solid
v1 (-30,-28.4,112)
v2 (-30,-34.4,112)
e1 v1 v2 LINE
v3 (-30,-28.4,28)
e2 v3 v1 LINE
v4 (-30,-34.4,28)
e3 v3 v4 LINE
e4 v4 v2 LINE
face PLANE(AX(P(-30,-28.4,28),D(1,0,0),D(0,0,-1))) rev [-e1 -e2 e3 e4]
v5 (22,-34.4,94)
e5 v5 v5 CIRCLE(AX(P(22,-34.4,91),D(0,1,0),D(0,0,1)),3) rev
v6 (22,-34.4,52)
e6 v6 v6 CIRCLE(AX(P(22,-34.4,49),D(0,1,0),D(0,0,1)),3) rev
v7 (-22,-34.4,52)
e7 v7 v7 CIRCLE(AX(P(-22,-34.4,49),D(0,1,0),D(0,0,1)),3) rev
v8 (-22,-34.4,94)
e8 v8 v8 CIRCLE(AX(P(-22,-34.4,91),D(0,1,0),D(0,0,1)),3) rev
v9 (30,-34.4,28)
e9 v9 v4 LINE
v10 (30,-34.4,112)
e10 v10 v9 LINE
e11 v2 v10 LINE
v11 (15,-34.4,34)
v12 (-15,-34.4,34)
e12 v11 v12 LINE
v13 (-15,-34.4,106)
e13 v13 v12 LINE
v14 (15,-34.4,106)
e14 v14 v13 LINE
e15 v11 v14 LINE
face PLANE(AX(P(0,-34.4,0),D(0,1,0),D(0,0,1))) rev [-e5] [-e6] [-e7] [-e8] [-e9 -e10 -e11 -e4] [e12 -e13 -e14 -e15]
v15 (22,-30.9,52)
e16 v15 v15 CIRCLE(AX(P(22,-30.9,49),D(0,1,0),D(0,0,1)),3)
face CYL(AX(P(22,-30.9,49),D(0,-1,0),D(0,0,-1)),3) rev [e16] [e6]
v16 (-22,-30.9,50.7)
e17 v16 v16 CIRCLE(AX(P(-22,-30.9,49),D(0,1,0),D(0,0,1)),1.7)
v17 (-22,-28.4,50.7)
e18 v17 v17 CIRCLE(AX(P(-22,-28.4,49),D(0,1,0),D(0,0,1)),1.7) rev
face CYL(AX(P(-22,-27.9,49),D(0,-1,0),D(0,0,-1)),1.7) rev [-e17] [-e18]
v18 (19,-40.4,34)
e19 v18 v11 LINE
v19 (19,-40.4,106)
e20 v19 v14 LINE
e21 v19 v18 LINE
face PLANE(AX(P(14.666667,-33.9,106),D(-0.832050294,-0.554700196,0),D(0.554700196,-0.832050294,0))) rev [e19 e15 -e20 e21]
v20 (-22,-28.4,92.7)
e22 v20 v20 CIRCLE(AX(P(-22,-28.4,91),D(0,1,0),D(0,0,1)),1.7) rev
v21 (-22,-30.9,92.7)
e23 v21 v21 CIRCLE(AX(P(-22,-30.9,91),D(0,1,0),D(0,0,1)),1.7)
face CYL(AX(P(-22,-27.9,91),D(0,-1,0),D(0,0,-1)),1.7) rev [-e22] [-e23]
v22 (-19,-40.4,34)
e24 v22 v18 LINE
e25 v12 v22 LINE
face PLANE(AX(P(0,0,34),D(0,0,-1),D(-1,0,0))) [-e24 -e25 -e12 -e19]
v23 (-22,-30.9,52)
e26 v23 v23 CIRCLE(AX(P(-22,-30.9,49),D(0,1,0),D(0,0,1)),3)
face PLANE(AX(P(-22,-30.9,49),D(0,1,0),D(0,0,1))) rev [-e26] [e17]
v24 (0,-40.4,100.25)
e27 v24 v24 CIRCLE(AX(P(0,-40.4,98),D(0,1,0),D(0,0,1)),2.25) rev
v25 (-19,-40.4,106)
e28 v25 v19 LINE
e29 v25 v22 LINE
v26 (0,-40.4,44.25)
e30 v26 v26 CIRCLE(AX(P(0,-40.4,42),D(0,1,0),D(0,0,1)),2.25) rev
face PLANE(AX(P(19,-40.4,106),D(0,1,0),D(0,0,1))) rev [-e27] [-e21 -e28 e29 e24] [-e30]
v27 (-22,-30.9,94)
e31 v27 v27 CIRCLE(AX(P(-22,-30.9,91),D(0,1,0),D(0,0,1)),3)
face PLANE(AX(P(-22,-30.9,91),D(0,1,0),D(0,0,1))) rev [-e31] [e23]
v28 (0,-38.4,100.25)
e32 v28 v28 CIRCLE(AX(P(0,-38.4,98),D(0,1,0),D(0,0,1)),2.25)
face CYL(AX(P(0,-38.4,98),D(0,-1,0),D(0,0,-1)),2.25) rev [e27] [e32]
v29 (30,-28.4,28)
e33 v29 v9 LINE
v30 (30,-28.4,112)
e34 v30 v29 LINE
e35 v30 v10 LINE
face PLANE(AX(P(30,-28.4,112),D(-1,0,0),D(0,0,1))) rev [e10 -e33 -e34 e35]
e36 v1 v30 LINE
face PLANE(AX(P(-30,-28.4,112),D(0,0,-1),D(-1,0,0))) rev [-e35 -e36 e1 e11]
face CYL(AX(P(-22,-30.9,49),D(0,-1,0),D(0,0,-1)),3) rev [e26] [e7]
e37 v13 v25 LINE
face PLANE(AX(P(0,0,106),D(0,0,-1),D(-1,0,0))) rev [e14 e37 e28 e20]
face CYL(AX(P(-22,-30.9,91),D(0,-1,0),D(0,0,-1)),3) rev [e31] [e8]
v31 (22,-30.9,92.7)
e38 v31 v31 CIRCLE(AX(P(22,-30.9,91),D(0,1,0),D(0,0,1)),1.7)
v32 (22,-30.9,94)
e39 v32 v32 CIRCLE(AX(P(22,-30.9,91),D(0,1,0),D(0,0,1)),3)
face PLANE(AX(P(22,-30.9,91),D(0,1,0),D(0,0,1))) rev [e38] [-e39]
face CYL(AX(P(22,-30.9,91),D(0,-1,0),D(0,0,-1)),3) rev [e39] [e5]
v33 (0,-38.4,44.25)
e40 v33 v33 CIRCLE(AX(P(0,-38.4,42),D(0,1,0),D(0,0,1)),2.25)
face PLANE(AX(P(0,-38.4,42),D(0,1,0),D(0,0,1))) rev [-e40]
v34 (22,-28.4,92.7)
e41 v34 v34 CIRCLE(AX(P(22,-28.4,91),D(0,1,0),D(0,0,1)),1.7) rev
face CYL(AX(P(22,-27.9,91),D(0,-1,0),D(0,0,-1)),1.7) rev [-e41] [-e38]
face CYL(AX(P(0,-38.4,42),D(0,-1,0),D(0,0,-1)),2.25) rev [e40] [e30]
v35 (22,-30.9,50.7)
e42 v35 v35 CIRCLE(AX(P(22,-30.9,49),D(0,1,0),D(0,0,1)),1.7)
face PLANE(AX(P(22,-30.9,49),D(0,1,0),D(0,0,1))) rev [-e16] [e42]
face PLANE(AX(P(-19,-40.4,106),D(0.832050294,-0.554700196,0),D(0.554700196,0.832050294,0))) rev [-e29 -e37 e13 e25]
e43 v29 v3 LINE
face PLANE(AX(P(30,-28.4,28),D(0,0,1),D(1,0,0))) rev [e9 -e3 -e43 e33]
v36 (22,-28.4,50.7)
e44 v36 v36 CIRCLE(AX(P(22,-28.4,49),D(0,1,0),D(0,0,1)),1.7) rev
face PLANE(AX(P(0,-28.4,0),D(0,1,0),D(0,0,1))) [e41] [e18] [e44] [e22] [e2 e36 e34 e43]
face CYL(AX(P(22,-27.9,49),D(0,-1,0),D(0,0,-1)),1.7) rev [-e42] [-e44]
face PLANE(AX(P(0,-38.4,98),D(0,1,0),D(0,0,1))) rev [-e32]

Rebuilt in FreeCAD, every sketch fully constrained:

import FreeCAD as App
import Part
import Sketcher

doc = App.newDocument("Part")
body = doc.addObject("PartDesign::Body", "Body")

# Sketch on XZ plane
sketch1 = doc.addObject("Sketcher::SketchObject", "Sketch")
body.addObject(sketch1)
sketch1.AttachmentSupport = (doc.XZ_Plane, [""])
sketch1.MapMode = "FlatFace"
sketch1.AttachmentOffset = App.Placement(App.Vector(0, 0, 34.4), App.Rotation())
sketch1.addGeometry([
    Part.LineSegment(App.Vector(-30, 28, 0), App.Vector(-30, 112, 0)),
    Part.LineSegment(App.Vector(-30, 112, 0), App.Vector(30, 112, 0)),
    Part.LineSegment(App.Vector(30, 112, 0), App.Vector(30, 28, 0)),
    Part.LineSegment(App.Vector(30, 28, 0), App.Vector(-30, 28, 0)),
], False)
sketch1.addConstraint([
    Sketcher.Constraint("Coincident", 0, 2, 1, 1),
    Sketcher.Constraint("Coincident", 1, 2, 2, 1),
    Sketcher.Constraint("Coincident", 2, 2, 3, 1),
    Sketcher.Constraint("Coincident", 3, 2, 0, 1),
    Sketcher.Constraint("Vertical", 0),
    Sketcher.Constraint("Horizontal", 1),
    Sketcher.Constraint("Vertical", 2),
    Sketcher.Constraint("Horizontal", 3),
    Sketcher.Constraint("DistanceX", 1, 1, 1, 2, 60.0),
    Sketcher.Constraint("DistanceY", 0, 1, 0, 2, 84.0),
    Sketcher.Constraint("DistanceX", 0, 2, -1, 1, 30.0),
    Sketcher.Constraint("DistanceY", -1, 1, 0, 2, 112.0),
])
pad1 = doc.addObject("PartDesign::Pad", "Pad")
body.addObject(pad1)
pad1.Profile = sketch1
pad1.Length = 6
pad1.Reversed = True

# Sketch on XY plane
sketch2 = doc.addObject("Sketcher::SketchObject", "Sketch001")
body.addObject(sketch2)
sketch2.AttachmentSupport = (doc.XY_Plane, [""])
sketch2.MapMode = "FlatFace"
sketch2.AttachmentOffset = App.Placement(App.Vector(0, 0, 34), App.Rotation())
sketch2.addGeometry([
    Part.LineSegment(App.Vector(14.666667, -33.9, 0), App.Vector(-14.666667, -33.9, 0)),
    Part.LineSegment(App.Vector(-14.666667, -33.9, 0), App.Vector(-19, -40.4, 0)),
    Part.LineSegment(App.Vector(-19, -40.4, 0), App.Vector(19, -40.4, 0)),
    Part.LineSegment(App.Vector(19, -40.4, 0), App.Vector(14.666667, -33.9, 0)),
], False)
sketch2.addConstraint([
    Sketcher.Constraint("Coincident", 0, 2, 1, 1),
    Sketcher.Constraint("Coincident", 1, 2, 2, 1),
    Sketcher.Constraint("Coincident", 2, 2, 3, 1),
    Sketcher.Constraint("Coincident", 3, 2, 0, 1),
    Sketcher.Constraint("Horizontal", 0),
    Sketcher.Constraint("Horizontal", 2),
    Sketcher.Constraint("Equal", 1, 3),
    Sketcher.Constraint("DistanceX", 2, 1, 2, 2, 38.0),
    Sketcher.Constraint("DistanceX", 1, 2, -1, 1, 19.0),
    Sketcher.Constraint("DistanceY", 0, 2, -1, 1, 33.9),
    Sketcher.Constraint("DistanceY", 1, 2, -1, 1, 40.4),
    Sketcher.Constraint("DistanceX", 0, 2, 0, 1, 29.333333),
])
pad2 = doc.addObject("PartDesign::Pad", "Pad001")
body.addObject(pad2)
pad2.Profile = sketch2
pad2.Length = 72

# Sketch on XZ plane
sketch3 = doc.addObject("Sketcher::SketchObject", "Sketch002")
body.addObject(sketch3)
sketch3.AttachmentSupport = (doc.XZ_Plane, [""])
sketch3.MapMode = "FlatFace"
sketch3.AttachmentOffset = App.Placement(App.Vector(0, 0, 34.9), App.Rotation())
sketch3.addGeometry([
    Part.Circle(App.Vector(-22, 91, 0), App.Vector(0, 0, 1), 1.7),
    Part.Circle(App.Vector(-22, 49, 0), App.Vector(0, 0, 1), 1.7),
    Part.Circle(App.Vector(22, 91, 0), App.Vector(0, 0, 1), 1.7),
    Part.Circle(App.Vector(22, 49, 0), App.Vector(0, 0, 1), 1.7),
], False)
sketch3.addConstraint([
    Sketcher.Constraint("Equal", 0, 1),
    Sketcher.Constraint("Equal", 1, 2),
    Sketcher.Constraint("Equal", 2, 3),
    Sketcher.Constraint("Symmetric", 0, 3, 2, 3, -2),
    Sketcher.Constraint("Symmetric", 1, 3, 3, 3, -2),
    Sketcher.Constraint("Vertical", 0, 3, 1, 3),
    Sketcher.Constraint("Diameter", 0, 3.4),
    Sketcher.Constraint("DistanceX", 0, 3, -1, 1, 22.0),
    Sketcher.Constraint("DistanceY", -1, 1, 0, 3, 91.0),
    Sketcher.Constraint("DistanceY", -1, 1, 1, 3, 49.0),
])
pocket1 = doc.addObject("PartDesign::Pocket", "Pocket")
body.addObject(pocket1)
pocket1.Profile = sketch3
pocket1.Length = 7

# Sketch on XZ plane
sketch4 = doc.addObject("Sketcher::SketchObject", "Sketch003")
body.addObject(sketch4)
sketch4.AttachmentSupport = (doc.XZ_Plane, [""])
sketch4.MapMode = "FlatFace"
sketch4.AttachmentOffset = App.Placement(App.Vector(0, 0, 34.9), App.Rotation())
sketch4.addGeometry([
    Part.Circle(App.Vector(-22, 91, 0), App.Vector(0, 0, 1), 3),
    Part.Circle(App.Vector(-22, 49, 0), App.Vector(0, 0, 1), 3),
    Part.Circle(App.Vector(22, 91, 0), App.Vector(0, 0, 1), 3),
    Part.Circle(App.Vector(22, 49, 0), App.Vector(0, 0, 1), 3),
], False)
sketch4.addConstraint([
    Sketcher.Constraint("Equal", 0, 1),
    Sketcher.Constraint("Equal", 1, 2),
    Sketcher.Constraint("Equal", 2, 3),
    Sketcher.Constraint("Symmetric", 0, 3, 2, 3, -2),
    Sketcher.Constraint("Symmetric", 1, 3, 3, 3, -2),
    Sketcher.Constraint("Vertical", 0, 3, 1, 3),
    Sketcher.Constraint("Diameter", 0, 6.0),
    Sketcher.Constraint("DistanceX", 0, 3, -1, 1, 22.0),
    Sketcher.Constraint("DistanceY", -1, 1, 0, 3, 91.0),
    Sketcher.Constraint("DistanceY", -1, 1, 1, 3, 49.0),
])
pocket2 = doc.addObject("PartDesign::Pocket", "Pocket001")
body.addObject(pocket2)
pocket2.Profile = sketch4
pocket2.Length = 4

# Sketch on XZ plane
sketch5 = doc.addObject("Sketcher::SketchObject", "Sketch004")
body.addObject(sketch5)
sketch5.AttachmentSupport = (doc.XZ_Plane, [""])
sketch5.MapMode = "FlatFace"
sketch5.AttachmentOffset = App.Placement(App.Vector(0, 0, 40.9), App.Rotation())
sketch5.addGeometry([
    Part.Circle(App.Vector(0, 98, 0), App.Vector(0, 0, 1), 2.25),
    Part.Circle(App.Vector(0, 42, 0), App.Vector(0, 0, 1), 2.25),
], False)
sketch5.addConstraint([
    Sketcher.Constraint("Equal", 0, 1),
    Sketcher.Constraint("PointOnObject", 0, 3, -2),
    Sketcher.Constraint("PointOnObject", 1, 3, -2),
    Sketcher.Constraint("Diameter", 0, 4.5),
    Sketcher.Constraint("DistanceY", -1, 1, 0, 3, 98.0),
    Sketcher.Constraint("DistanceY", -1, 1, 1, 3, 42.0),
])
pocket3 = doc.addObject("PartDesign::Pocket", "Pocket002")
body.addObject(pocket3)
pocket3.Profile = sketch5
pocket3.Length = 2.5

doc.recompute()
